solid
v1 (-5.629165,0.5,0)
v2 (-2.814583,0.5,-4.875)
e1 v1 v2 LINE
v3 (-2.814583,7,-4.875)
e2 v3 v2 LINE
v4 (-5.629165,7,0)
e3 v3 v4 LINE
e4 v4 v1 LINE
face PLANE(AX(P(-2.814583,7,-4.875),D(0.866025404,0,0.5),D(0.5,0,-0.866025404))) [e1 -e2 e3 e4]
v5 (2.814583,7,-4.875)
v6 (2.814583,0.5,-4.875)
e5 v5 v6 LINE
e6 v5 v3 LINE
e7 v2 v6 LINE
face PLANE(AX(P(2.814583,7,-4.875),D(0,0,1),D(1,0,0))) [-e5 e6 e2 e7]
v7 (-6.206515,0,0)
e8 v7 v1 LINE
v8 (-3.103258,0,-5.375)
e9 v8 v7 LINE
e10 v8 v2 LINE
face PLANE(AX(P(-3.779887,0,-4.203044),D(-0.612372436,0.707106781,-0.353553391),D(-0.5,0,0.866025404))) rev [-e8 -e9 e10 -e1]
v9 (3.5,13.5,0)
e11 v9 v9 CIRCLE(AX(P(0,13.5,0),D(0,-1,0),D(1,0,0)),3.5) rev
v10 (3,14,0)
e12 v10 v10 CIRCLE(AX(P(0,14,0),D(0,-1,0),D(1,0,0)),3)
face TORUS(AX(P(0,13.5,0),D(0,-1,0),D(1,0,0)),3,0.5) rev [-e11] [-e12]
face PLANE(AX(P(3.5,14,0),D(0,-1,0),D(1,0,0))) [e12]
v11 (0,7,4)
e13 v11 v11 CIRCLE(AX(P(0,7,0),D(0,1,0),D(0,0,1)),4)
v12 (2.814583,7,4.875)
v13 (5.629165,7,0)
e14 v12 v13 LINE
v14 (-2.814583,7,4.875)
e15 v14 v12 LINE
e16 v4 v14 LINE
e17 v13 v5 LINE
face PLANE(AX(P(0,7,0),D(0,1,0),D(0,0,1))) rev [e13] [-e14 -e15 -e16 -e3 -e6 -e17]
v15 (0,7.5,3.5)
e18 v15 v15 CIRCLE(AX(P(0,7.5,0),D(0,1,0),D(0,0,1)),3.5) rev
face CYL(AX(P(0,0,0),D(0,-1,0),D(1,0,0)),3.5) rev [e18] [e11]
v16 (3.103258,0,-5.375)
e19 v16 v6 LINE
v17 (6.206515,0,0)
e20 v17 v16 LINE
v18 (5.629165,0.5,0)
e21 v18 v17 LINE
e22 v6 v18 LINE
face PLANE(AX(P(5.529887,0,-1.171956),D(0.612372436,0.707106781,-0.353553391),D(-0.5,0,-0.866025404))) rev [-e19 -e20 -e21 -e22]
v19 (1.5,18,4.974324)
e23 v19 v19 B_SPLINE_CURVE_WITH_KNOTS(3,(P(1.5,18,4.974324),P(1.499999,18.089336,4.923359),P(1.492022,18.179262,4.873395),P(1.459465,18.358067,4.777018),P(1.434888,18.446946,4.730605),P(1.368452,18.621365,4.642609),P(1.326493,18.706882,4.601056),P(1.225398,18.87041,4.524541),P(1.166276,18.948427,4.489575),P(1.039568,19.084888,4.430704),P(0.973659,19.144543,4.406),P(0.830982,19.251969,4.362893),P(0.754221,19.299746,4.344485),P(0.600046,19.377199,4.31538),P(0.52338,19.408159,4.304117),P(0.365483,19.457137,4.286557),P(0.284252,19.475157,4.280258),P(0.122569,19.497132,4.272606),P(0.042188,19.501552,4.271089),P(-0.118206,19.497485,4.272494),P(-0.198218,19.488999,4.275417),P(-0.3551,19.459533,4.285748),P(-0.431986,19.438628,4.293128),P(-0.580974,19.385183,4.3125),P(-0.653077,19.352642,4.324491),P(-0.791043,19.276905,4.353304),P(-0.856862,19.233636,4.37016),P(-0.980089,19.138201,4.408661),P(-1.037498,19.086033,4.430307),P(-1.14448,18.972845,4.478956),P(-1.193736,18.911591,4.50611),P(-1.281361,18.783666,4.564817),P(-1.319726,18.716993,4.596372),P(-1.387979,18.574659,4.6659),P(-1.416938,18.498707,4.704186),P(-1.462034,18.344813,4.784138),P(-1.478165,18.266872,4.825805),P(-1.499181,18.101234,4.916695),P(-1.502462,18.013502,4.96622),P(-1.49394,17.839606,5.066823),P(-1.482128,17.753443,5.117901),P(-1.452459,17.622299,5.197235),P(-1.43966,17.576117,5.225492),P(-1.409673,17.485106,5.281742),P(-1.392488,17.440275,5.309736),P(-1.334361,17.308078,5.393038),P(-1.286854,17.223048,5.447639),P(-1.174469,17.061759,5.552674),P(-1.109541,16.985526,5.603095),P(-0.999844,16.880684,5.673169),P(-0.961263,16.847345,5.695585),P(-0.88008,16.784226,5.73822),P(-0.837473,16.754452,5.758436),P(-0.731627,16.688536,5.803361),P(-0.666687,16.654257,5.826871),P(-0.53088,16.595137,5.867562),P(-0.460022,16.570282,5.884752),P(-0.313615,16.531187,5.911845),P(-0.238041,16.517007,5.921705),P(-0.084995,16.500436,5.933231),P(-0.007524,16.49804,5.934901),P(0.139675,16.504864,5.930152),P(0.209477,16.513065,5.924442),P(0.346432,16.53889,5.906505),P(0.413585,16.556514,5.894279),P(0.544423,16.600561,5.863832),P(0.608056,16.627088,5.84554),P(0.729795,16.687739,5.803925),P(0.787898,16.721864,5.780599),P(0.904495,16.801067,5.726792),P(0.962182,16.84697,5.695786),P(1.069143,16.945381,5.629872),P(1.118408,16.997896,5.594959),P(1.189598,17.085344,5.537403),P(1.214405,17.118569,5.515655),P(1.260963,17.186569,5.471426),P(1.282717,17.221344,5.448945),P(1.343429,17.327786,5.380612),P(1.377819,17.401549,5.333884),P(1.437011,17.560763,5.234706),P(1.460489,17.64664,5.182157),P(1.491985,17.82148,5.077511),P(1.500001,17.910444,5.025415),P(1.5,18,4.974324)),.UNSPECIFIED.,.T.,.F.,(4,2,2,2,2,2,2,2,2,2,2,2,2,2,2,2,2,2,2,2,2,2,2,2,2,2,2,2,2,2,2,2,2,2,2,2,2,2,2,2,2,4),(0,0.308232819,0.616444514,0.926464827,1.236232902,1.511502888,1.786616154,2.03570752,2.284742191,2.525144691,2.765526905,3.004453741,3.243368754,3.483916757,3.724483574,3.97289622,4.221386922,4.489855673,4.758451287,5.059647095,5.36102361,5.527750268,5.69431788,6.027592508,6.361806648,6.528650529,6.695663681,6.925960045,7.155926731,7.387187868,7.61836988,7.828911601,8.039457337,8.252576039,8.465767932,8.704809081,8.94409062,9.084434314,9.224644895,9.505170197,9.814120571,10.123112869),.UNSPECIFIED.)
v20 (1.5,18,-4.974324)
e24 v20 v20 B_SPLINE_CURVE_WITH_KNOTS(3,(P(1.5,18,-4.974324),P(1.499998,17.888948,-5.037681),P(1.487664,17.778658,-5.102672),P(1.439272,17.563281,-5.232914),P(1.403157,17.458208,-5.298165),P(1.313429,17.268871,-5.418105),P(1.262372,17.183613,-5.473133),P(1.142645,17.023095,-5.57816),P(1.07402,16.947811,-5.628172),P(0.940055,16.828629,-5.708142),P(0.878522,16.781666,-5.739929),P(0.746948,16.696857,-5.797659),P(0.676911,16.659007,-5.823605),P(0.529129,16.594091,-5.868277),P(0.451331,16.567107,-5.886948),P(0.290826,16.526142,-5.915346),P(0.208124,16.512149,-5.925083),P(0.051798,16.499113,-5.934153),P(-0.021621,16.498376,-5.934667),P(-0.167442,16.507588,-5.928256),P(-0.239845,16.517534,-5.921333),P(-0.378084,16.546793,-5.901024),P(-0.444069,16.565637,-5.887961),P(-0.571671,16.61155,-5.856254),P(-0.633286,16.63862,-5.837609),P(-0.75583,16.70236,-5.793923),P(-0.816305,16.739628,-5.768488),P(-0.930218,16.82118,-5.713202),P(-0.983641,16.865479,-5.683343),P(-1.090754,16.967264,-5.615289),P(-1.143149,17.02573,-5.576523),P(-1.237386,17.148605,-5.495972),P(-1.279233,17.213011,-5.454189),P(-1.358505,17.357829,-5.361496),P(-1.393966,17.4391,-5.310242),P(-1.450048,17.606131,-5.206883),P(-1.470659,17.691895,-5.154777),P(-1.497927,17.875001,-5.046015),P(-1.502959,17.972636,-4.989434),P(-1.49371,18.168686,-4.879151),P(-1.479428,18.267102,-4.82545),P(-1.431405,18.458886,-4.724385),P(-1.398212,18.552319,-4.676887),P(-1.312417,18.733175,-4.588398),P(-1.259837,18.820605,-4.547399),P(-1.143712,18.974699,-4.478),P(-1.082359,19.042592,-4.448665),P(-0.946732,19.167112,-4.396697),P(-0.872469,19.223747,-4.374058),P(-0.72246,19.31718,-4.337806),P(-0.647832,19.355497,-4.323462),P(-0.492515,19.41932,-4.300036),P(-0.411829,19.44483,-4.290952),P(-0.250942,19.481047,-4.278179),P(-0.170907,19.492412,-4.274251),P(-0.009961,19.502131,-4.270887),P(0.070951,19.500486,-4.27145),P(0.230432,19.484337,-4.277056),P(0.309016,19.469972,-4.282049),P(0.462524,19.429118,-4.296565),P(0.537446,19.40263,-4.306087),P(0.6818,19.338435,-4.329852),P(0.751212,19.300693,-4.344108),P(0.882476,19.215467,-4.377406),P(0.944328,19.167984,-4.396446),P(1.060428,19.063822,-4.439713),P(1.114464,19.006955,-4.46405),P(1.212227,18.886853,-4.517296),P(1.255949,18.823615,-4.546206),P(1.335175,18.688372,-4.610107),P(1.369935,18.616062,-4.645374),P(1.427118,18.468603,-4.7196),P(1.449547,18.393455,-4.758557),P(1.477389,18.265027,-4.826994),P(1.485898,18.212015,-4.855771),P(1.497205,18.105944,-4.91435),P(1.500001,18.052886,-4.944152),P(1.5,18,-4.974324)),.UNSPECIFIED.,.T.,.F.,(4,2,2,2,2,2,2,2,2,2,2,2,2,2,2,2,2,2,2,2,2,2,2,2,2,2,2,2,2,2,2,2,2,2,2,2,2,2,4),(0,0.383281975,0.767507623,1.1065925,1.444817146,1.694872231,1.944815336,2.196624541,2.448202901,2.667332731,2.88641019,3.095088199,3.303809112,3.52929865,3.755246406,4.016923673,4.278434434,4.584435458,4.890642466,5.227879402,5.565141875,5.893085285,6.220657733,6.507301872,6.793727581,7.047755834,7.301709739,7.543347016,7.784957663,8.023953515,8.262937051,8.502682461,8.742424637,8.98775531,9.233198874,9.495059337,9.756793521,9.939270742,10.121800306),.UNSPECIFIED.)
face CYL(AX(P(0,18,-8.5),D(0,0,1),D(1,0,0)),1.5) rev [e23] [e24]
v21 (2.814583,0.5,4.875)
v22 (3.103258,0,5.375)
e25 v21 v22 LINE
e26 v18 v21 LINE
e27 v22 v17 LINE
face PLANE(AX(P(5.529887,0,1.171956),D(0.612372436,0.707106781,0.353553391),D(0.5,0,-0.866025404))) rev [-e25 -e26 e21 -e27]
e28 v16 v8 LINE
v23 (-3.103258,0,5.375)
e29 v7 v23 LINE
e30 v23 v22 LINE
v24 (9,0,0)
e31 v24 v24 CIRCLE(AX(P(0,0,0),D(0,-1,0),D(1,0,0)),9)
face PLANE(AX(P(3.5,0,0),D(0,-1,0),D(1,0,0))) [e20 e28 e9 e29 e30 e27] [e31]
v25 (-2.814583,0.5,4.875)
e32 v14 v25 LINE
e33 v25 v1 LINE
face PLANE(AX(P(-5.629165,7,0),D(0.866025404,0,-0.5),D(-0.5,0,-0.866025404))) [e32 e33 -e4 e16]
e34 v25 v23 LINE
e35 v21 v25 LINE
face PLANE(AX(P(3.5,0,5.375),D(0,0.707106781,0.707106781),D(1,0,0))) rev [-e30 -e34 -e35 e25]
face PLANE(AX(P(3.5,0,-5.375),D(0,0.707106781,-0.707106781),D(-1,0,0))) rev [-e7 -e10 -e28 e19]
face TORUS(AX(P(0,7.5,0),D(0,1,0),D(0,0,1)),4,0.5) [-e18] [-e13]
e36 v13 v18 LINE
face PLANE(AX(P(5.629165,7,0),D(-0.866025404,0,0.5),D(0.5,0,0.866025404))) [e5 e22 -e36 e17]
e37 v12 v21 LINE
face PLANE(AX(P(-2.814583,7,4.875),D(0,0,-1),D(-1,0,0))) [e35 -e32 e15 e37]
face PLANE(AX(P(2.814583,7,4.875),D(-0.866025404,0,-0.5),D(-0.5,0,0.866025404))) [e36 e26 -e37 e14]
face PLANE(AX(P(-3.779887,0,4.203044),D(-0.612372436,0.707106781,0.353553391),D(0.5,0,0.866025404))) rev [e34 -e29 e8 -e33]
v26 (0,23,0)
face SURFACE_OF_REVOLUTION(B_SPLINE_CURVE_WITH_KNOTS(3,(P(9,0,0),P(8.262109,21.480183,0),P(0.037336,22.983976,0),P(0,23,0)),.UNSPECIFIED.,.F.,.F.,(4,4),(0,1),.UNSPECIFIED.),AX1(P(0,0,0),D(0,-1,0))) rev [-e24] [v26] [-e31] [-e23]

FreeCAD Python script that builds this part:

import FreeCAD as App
import Part
import Sketcher
Q = App.Units.Quantity


def edges_at(feature, points):
    """Names of the edges that pass closest to the given points."""
    edges = feature.Shape.Edges
    near = lambda p: min(range(len(edges)), key=lambda i: edges[i].distToShape(Part.Vertex(*p))[0])
    return sorted({f"Edge{near(p) + 1}" for p in points})


def add_polygon(sketch, points):
    """Adds a closed chain of lines whose ends are joined by coincident constraints."""
    first, n = sketch.GeometryCount, len(points)
    for a, b in zip(points, points[1:] + points[:1]):
        sketch.addGeometry(Part.LineSegment(App.Vector(*a, 0), App.Vector(*b, 0)), False)
    for i in range(n):
        sketch.addConstraint(Sketcher.Constraint("Coincident", first + i, 2, first + (i + 1) % n, 1))

doc = App.newDocument("Part")
body = doc.addObject("PartDesign::Body", "Body")

sketch1 = doc.addObject("Sketcher::SketchObject", "Sketch")
body.addObject(sketch1)
sketch1.AttachmentSupport = (doc.XY_Plane, [""])
sketch1.MapMode = "FlatFace"
sketch1.addGeometry(Part.LineSegment(App.Vector(3.5, 0, 0), App.Vector(9, 0, 0)), False)
sketch1.addGeometry(Part.BSplineCurve([App.Vector(0, 23, 0), App.Vector(0.037336, 22.983976, 0), App.Vector(8.262109, 21.480183, 0), App.Vector(9, 0, 0)], [4, 4], [0, 1], False, 3, [1, 1, 1, 1], False), False)
sketch1.addGeometry(Part.LineSegment(App.Vector(0, 23, 0), App.Vector(0, 14, 0)), False)
sketch1.addGeometry(Part.LineSegment(App.Vector(0, 14, 0), App.Vector(3.5, 14, 0)), False)
sketch1.addGeometry(Part.LineSegment(App.Vector(3.5, 14, 0), App.Vector(3.5, 0, 0)), False)
sketch1.addConstraint(Sketcher.Constraint("Block", 1))
sketch1.addConstraint(Sketcher.Constraint("Coincident", 0, 2, 1, 2))
sketch1.addConstraint(Sketcher.Constraint("Coincident", 1, 1, 2, 1))
sketch1.addConstraint(Sketcher.Constraint("Coincident", 2, 2, 3, 1))
sketch1.addConstraint(Sketcher.Constraint("Coincident", 3, 2, 4, 1))
sketch1.addConstraint(Sketcher.Constraint("Coincident", 4, 2, 0, 1))
sketch1.addConstraint(Sketcher.Constraint("Horizontal", 0))
sketch1.addConstraint(Sketcher.Constraint("Vertical", 2))
sketch1.addConstraint(Sketcher.Constraint("Horizontal", 3))
sketch1.addConstraint(Sketcher.Constraint("Vertical", 4))
sketch1.addConstraint(Sketcher.Constraint("DistanceY", 2, 2, 2, 1, 9.0))
sketch1.addConstraint(Sketcher.Constraint("DistanceX", 0, 1, 0, 2, 5.5))
revolution = doc.addObject("PartDesign::Revolution", "Revolution")
body.addObject(revolution)
revolution.Profile = sketch1
revolution.ReferenceAxis = (sketch1, ["V_Axis"])
revolution.Angle = 360

sketch2 = doc.addObject("Sketcher::SketchObject", "Sketch001")
body.addObject(sketch2)
sketch2.AttachmentSupport = (doc.XZ_Plane, [""])
sketch2.MapMode = "FlatFace"
add_polygon(sketch2, [(6, 0), (3, -5), (-3, -5), (-6, 0), (-3, 5), (3, 5)])
sketch2.addConstraint(Sketcher.Constraint("Horizontal", 1))
sketch2.addConstraint(Sketcher.Constraint("Horizontal", 4))
sketch2.addConstraint(Sketcher.Constraint("Symmetric", 0, 2, 3, 2, -1, 1))
sketch2.addConstraint(Sketcher.Constraint("Symmetric", 2, 2, 5, 2, -1, 1))
sketch2.addConstraint(Sketcher.Constraint("PointOnObject", 2, 2, -1))
sketch2.addConstraint(Sketcher.Constraint("Parallel", 2, 5))
sketch2.addConstraint(Sketcher.Constraint("Vertical", 1, 2, 3, 2))
sketch2.addConstraint(Sketcher.Constraint("Angle", 0, Q("-120 deg")))
sketch2.addConstraint(Sketcher.Constraint("DistanceY", 1, 2, 3, 2, 9.75))
sketch2.addConstraint(Sketcher.Constraint("DistanceX", 1, 2, 1, 1, 5.629165))
pocket1 = doc.addObject("PartDesign::Pocket", "Pocket")
body.addObject(pocket1)
pocket1.Profile = sketch2
pocket1.Length = 7

sketch3 = doc.addObject("Sketcher::SketchObject", "Sketch002")
body.addObject(sketch3)
sketch3.AttachmentSupport = (doc.XY_Plane, [""])
sketch3.MapMode = "FlatFace"
sketch3.addGeometry(Part.Circle(App.Vector(0, 18, 0), App.Vector(0, 0, 1), 1.5), False)
sketch3.addConstraint(Sketcher.Constraint("PointOnObject", 0, 3, -2))
sketch3.addConstraint(Sketcher.Constraint("Diameter", 0, 3.0))
sketch3.addConstraint(Sketcher.Constraint("DistanceY", -1, 1, 0, 3, 18.0))
pocket2 = doc.addObject("PartDesign::Pocket", "Pocket001")
body.addObject(pocket2)
pocket2.Profile = sketch3
pocket2.Length = 17
pocket2.Midplane = True
doc.recompute()

chamfer = doc.addObject("PartDesign::Chamfer", "Chamfer")
body.addObject(chamfer)
chamfer.Base = (pocket2, edges_at(pocket2, [
    (4.222, 0, 2.438),
    (4.222, 0, -2.438),
    (0, 0, -4.875),
    (-4.222, 0, -2.438),
    (-4.222, 0, 2.438),
    (0, 0, 4.875),
]))
chamfer.Size = 0.5
doc.recompute()

fillet = doc.addObject("PartDesign::Fillet", "Fillet")
body.addObject(fillet)
fillet.Base = (chamfer, edges_at(chamfer, [(-3.5, 7, 0), (-3.5, 14, 0)]))
fillet.Radius = 0.5

doc.recompute()
